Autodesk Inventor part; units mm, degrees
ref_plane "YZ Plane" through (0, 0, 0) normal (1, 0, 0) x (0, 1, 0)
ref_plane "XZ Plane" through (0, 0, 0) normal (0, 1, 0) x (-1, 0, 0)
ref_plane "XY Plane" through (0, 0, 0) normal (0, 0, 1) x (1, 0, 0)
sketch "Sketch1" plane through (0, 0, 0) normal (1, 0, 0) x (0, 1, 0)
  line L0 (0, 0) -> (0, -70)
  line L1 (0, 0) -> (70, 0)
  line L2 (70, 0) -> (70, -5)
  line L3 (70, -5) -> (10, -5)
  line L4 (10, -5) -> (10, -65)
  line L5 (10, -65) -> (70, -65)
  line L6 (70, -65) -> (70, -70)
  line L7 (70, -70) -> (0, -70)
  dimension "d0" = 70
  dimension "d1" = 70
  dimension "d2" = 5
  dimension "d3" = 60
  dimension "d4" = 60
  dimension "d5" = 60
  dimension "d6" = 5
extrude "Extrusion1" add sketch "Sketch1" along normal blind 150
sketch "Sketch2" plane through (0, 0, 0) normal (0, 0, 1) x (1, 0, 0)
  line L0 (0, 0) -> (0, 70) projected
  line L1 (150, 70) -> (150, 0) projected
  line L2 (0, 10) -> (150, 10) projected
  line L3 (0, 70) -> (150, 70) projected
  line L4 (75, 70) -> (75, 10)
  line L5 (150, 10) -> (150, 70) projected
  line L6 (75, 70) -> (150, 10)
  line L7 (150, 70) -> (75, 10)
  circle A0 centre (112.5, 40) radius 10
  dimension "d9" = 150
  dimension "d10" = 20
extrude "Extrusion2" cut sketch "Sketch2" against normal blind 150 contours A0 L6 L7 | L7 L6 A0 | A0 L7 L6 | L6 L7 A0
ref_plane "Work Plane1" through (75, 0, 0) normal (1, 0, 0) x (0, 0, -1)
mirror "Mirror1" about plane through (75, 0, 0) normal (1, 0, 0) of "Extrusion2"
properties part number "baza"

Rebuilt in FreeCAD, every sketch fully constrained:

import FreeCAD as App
import Part
import Sketcher

V = App.Vector
Q = App.Units.Quantity


def add_polygon(sketch, points):
    """Adds a closed chain of lines whose ends are joined by coincident constraints."""
    first, n = sketch.GeometryCount, len(points)
    for a, b in zip(points, points[1:] + points[:1]):
        sketch.addGeometry(Part.LineSegment(App.Vector(*a, 0), App.Vector(*b, 0)), False)
    for i in range(n):
        sketch.addConstraint(Sketcher.Constraint("Coincident", first + i, 2, first + (i + 1) % n, 1))

doc = App.newDocument("Part")
body = doc.addObject("PartDesign::Body", "Body")

sketch1 = doc.addObject("Sketcher::SketchObject", "Sketch")
body.addObject(sketch1)
sketch1.AttachmentSupport = (doc.YZ_Plane, [""])
sketch1.MapMode = "FlatFace"
add_polygon(sketch1, [(70, 0), (0, 0), (0, -70), (70, -70), (70, -65), (10, -65), (10, -5), (70, -5)])
sketch1.addConstraint([
    Sketcher.Constraint("Horizontal", 0),
    Sketcher.Constraint("Vertical", 1),
    Sketcher.Constraint("Horizontal", 2),
    Sketcher.Constraint("Vertical", 3),
    Sketcher.Constraint("Horizontal", 4),
    Sketcher.Constraint("Vertical", 5),
    Sketcher.Constraint("Horizontal", 6),
    Sketcher.Constraint("Vertical", 7),
    Sketcher.Constraint("Coincident", 0, 2, -1, 1),
    Sketcher.Constraint("Vertical", 3, 2, 6, 2),
    Sketcher.Constraint("Equal", 2, 1),
    Sketcher.Constraint("Equal", 6, 5),
    Sketcher.Constraint("Equal", 3, 7),
    Sketcher.Constraint("DistanceX", 0, 2, 0, 1, Q("70 mm")),
    Sketcher.Constraint("DistanceX", 4, 2, 4, 1, Q("60 mm")),
])
pad1 = doc.addObject("PartDesign::Pad", "Pad")
body.addObject(pad1)
pad1.Profile = sketch1
pad1.Length = 150

sketch2 = doc.addObject("Sketcher::SketchObject", "Sketch001")
body.addObject(sketch2)
sketch2.AttachmentSupport = (doc.XY_Plane, [""])
sketch2.MapMode = "FlatFace"
sketch2.addGeometry(Part.Circle(V(112.5, 40, 0), V(0, 0, 1), 10), False)
sketch2.addConstraint([
    Sketcher.Constraint("Diameter", 0, Q("20 mm")),
    Sketcher.Constraint("DistanceY", -1, 1, 0, 3, Q("40 mm")),
    Sketcher.Constraint("DistanceX", -1, 1, 0, 3, Q("112.5 mm")),
])
pocket1 = doc.addObject("PartDesign::Pocket", "Pocket")
body.addObject(pocket1)
pocket1.Profile = sketch2
pocket1.Length = 150
doc.recompute()

datumplane = doc.addObject("PartDesign::Plane", "DatumPlane")
body.addObject(datumplane)
datumplane.AttachmentSupport = (doc.YZ_Plane, [""])
datumplane.MapMode = "FlatFace"
datumplane.AttachmentOffset = App.Placement(V(0, 0, 75), App.Rotation())
mirrored = doc.addObject("PartDesign::Mirrored", "Mirrored")
body.addObject(mirrored)
mirrored.Originals = [pocket1]
mirrored.MirrorPlane = (datumplane, [""])
body.Tip = mirrored

doc.recompute()
